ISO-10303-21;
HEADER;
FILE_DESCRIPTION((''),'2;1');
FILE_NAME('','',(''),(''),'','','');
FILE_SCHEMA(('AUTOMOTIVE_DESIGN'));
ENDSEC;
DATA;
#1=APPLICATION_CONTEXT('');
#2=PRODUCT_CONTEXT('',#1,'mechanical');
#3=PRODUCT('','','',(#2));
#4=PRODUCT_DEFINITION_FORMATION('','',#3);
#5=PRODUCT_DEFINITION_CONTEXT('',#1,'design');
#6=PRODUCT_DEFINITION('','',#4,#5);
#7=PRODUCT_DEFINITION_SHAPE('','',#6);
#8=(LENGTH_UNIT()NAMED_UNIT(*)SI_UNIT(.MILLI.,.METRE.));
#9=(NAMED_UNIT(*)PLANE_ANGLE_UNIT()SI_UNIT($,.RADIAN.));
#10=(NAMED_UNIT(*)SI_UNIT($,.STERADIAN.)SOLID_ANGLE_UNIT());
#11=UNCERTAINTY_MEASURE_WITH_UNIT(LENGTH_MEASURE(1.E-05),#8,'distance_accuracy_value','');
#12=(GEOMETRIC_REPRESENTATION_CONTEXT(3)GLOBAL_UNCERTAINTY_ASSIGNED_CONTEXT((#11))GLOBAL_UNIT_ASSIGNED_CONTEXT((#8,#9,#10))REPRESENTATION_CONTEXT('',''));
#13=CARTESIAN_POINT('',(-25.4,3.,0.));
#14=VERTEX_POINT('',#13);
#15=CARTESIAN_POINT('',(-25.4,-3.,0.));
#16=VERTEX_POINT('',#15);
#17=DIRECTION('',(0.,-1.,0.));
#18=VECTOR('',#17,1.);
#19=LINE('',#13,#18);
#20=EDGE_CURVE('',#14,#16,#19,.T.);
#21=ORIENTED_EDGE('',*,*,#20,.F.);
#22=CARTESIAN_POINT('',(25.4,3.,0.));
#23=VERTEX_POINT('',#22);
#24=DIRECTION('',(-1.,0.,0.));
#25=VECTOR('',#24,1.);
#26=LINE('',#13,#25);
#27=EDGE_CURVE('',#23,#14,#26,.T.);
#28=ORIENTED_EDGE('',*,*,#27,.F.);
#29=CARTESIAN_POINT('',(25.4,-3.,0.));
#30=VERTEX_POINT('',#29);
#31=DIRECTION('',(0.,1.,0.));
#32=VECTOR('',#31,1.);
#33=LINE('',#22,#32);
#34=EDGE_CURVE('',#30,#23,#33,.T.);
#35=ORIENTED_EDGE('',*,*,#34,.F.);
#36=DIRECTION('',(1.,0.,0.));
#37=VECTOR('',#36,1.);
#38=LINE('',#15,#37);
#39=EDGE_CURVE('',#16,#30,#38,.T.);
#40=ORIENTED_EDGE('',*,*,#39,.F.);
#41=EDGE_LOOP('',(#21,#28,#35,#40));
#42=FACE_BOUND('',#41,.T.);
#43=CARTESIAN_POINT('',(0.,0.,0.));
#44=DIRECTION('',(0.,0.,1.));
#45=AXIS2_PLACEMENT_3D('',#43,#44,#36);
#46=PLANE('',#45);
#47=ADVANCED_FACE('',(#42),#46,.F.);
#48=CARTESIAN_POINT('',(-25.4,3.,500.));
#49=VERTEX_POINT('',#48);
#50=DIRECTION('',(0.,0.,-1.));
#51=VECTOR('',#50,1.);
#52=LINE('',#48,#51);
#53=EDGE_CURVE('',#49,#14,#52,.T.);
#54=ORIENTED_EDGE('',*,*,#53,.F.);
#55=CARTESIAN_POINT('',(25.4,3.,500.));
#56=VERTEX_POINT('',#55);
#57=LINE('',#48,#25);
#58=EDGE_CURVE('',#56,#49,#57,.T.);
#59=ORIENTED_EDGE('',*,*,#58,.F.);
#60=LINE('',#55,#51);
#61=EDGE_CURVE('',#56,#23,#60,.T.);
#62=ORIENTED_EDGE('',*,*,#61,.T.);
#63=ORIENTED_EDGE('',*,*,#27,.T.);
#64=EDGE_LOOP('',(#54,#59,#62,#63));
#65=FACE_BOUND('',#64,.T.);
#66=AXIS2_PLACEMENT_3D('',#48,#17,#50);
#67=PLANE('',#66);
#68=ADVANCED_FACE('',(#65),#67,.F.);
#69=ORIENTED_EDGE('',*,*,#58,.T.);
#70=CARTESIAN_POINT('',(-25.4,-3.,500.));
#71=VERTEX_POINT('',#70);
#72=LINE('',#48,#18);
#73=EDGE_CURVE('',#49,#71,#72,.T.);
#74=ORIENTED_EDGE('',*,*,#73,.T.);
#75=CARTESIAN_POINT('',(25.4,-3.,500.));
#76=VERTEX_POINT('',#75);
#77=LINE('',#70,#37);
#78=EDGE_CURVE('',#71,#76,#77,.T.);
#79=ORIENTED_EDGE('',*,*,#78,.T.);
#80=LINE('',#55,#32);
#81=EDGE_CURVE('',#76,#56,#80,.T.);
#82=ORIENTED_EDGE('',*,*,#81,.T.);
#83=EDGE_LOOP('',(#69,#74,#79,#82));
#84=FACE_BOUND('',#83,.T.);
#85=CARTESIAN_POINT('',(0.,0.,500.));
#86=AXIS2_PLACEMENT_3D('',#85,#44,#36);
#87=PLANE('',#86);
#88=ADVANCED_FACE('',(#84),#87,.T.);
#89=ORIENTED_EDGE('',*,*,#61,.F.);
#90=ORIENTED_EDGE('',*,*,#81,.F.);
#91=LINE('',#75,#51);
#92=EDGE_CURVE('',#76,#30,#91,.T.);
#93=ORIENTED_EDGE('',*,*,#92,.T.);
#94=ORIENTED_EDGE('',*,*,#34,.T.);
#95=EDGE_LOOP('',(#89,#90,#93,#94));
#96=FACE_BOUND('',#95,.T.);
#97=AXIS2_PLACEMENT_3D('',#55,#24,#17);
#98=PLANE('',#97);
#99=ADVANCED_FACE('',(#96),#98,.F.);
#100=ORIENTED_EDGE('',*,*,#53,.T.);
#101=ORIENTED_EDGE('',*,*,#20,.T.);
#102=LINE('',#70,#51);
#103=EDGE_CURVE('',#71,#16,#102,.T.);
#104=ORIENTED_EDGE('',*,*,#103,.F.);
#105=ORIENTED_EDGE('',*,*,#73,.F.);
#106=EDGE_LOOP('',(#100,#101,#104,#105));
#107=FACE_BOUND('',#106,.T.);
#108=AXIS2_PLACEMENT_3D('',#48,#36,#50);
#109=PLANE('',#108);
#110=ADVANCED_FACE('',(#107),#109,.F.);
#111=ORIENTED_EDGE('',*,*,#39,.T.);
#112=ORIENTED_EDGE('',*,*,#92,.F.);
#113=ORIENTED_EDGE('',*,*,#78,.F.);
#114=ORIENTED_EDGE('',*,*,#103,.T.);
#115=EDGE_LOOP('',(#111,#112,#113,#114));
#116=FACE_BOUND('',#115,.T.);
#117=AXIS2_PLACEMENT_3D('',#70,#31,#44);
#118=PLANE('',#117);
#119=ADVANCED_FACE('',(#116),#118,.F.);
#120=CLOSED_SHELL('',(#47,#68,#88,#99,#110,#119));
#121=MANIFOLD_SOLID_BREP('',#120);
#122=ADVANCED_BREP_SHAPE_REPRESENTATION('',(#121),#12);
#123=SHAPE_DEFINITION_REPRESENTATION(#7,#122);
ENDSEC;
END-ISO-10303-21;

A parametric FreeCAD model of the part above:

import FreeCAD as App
import Part
import Sketcher

V = App.Vector
Q = App.Units.Quantity


def add_polygon(sketch, points):
    """Adds a closed chain of lines whose ends are joined by coincident constraints."""
    first, n = sketch.GeometryCount, len(points)
    for a, b in zip(points, points[1:] + points[:1]):
        sketch.addGeometry(Part.LineSegment(App.Vector(*a, 0), App.Vector(*b, 0)), False)
    for i in range(n):
        sketch.addConstraint(Sketcher.Constraint("Coincident", first + i, 2, first + (i + 1) % n, 1))

doc = App.newDocument("Part")
body = doc.addObject("PartDesign::Body", "Body")

# Sketch on XY plane
sketch1 = body.newObject("Sketcher::SketchObject", "Sketch")
sketch1.AttachmentSupport = (doc.getObject("XY_Plane"), [""])
sketch1.MapMode = "FlatFace"
add_polygon(sketch1, [(-25, 3), (-25, -3), (25, -3), (25, 3)])  # lines 0-3
sketch1.addConstraint(Sketcher.Constraint("Vertical", 0))
sketch1.addConstraint(Sketcher.Constraint("Horizontal", 1))
sketch1.addConstraint(Sketcher.Constraint("Vertical", 2))
sketch1.addConstraint(Sketcher.Constraint("Horizontal", 3))
sketch1.addConstraint(Sketcher.Constraint("Symmetric", 0, 2, 2, 2, -1, 1))
sketch1.addConstraint(Sketcher.Constraint("DistanceY", 0, 2, 0, 1, Q("6 mm")))
sketch1.addConstraint(Sketcher.Constraint("DistanceX", 1, 1, 1, 2, Q("50.8 mm")))
pad1 = body.newObject("PartDesign::Pad", "Pad")
pad1.Profile = sketch1
pad1.Length = 500

doc.recompute()
